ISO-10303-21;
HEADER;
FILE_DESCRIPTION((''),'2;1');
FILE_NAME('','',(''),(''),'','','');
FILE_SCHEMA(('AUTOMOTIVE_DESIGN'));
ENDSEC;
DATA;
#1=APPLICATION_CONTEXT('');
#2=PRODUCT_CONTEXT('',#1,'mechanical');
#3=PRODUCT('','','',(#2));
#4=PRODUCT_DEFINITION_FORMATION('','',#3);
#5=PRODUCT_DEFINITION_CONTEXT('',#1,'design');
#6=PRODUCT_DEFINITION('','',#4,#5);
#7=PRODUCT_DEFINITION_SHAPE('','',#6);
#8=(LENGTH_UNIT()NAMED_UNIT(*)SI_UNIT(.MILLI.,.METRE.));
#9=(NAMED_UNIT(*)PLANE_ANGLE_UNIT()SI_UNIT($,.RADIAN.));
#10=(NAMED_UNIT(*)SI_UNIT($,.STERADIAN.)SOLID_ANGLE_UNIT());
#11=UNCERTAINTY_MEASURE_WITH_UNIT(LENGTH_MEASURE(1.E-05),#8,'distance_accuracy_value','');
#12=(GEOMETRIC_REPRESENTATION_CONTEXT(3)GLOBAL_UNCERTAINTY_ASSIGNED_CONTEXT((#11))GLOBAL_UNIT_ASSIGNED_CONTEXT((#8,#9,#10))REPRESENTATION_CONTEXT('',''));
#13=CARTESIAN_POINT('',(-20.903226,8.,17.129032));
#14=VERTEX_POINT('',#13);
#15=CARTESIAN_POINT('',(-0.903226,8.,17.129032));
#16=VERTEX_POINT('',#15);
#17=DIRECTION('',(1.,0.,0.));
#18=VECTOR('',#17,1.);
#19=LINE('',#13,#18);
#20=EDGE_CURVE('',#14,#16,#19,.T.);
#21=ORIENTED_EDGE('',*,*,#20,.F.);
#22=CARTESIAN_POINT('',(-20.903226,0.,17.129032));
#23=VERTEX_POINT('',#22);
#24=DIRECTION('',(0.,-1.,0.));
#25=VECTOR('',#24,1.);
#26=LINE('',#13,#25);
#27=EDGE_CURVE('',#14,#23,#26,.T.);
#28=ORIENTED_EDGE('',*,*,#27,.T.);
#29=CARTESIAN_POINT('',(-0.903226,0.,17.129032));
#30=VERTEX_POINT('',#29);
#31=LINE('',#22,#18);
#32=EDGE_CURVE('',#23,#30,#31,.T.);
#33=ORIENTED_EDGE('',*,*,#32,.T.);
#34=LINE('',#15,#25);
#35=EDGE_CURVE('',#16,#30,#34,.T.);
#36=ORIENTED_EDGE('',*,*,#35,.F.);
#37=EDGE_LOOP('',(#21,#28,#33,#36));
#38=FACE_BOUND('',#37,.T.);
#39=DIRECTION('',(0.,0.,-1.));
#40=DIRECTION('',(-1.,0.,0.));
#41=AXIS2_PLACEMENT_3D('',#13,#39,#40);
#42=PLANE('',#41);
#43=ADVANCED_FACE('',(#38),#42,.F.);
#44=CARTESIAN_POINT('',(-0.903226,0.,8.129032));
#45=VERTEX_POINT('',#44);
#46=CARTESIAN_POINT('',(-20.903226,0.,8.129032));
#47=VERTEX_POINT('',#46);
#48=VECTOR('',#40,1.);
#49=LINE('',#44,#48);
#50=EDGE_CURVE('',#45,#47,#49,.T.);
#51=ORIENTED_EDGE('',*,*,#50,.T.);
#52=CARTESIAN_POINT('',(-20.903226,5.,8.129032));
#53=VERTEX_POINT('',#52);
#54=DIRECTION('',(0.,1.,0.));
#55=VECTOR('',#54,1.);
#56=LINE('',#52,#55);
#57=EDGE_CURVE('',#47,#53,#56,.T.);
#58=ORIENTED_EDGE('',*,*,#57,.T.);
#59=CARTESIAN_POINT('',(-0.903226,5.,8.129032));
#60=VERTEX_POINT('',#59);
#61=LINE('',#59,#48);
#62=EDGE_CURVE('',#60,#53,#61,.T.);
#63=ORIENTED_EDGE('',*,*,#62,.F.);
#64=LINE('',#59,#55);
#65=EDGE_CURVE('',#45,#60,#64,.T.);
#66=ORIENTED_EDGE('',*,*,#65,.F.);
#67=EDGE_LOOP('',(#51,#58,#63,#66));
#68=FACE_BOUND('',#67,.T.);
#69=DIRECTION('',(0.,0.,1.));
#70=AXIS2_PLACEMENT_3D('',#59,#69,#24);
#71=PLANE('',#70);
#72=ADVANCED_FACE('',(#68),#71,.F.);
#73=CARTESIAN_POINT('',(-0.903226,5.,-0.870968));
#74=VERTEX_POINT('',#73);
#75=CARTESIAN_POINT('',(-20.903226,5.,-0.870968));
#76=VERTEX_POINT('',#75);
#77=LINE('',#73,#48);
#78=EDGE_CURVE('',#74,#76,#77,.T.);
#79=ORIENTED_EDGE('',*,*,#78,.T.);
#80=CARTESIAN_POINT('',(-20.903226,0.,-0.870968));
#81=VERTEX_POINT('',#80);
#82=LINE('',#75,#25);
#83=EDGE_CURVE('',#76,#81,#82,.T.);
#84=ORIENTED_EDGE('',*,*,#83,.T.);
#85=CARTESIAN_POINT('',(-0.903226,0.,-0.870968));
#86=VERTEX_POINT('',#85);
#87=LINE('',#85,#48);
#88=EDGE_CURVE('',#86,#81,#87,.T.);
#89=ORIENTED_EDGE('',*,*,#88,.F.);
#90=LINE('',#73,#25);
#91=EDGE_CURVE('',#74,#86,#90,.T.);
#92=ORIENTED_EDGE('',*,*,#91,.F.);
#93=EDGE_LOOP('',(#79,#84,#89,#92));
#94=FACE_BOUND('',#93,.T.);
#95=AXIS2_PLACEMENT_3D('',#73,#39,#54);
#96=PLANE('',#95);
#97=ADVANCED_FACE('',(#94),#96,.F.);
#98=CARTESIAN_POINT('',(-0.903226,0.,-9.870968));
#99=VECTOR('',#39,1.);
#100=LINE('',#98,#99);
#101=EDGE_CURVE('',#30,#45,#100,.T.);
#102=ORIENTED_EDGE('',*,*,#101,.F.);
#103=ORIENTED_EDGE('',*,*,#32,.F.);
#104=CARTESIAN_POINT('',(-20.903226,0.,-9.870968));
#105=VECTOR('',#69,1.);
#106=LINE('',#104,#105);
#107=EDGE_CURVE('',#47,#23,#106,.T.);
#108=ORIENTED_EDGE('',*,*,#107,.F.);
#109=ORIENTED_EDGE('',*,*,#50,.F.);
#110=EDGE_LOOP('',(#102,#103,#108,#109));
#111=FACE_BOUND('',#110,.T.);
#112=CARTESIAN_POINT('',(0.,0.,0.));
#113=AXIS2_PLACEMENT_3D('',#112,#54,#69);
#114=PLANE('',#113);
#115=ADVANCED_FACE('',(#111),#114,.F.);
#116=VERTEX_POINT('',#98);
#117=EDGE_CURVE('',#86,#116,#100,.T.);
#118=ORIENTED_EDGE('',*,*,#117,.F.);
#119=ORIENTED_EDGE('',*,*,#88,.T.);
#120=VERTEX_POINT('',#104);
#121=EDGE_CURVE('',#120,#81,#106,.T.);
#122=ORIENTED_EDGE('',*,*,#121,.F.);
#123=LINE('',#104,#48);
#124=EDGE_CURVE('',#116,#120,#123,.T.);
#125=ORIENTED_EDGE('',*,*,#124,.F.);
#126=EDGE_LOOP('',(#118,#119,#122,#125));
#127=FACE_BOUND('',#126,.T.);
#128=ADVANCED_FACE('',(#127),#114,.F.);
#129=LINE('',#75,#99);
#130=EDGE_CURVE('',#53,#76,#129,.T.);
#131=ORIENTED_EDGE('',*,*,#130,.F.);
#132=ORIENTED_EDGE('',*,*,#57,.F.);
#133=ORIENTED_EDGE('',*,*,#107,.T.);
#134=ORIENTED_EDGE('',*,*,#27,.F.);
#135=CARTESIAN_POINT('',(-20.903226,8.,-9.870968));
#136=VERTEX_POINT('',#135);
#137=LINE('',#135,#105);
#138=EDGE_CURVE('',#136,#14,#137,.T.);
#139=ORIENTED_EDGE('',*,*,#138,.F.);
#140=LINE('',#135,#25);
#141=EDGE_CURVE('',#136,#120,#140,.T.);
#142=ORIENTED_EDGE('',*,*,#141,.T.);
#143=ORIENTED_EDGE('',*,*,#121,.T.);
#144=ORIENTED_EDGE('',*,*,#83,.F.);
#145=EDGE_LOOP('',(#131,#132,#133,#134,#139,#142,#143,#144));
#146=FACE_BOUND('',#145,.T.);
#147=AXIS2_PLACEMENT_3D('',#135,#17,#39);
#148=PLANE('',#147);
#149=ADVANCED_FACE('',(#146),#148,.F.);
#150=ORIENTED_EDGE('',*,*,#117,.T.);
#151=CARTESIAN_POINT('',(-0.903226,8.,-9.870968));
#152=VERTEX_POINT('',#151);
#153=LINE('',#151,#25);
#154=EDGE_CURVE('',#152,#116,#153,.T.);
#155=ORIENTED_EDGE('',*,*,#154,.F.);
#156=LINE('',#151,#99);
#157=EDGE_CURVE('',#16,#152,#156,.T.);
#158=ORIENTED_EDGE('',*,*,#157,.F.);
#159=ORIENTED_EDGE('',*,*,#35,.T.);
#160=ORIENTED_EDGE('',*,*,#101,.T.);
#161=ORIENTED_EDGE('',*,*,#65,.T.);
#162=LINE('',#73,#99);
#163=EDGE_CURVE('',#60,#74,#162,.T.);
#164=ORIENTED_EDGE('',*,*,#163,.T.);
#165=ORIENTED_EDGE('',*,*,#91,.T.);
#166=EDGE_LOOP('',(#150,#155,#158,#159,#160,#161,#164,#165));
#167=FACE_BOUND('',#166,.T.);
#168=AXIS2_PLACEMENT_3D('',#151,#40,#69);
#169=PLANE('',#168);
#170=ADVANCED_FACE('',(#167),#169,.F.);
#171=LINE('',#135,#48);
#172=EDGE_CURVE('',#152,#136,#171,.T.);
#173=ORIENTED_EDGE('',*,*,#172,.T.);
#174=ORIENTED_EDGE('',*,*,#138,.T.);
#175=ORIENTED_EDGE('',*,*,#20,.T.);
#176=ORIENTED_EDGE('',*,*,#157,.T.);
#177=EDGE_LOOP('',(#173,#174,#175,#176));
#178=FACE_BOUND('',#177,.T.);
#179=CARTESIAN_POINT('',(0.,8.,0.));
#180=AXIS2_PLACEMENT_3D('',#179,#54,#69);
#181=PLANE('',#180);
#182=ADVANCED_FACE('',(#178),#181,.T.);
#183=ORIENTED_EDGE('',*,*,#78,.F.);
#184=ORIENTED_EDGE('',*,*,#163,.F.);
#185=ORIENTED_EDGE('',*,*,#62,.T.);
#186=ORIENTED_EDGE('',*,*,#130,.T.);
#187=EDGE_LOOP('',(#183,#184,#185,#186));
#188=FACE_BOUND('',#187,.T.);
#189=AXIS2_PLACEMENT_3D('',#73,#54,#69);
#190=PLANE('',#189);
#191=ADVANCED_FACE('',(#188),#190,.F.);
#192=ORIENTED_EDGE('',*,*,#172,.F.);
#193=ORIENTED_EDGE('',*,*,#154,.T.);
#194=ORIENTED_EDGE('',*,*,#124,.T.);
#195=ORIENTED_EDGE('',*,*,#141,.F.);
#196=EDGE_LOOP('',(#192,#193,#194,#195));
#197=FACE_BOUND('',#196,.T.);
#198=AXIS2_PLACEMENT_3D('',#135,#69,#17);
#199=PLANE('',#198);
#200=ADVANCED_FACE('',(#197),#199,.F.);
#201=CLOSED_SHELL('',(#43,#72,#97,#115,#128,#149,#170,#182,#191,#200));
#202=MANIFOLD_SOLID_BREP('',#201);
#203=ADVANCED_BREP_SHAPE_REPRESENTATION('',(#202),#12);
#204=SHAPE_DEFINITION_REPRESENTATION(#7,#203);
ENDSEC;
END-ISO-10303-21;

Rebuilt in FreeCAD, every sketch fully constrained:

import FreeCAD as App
import Part
import Sketcher


def add_polygon(sketch, points):
    """Adds a closed chain of lines whose ends are joined by coincident constraints."""
    first, n = sketch.GeometryCount, len(points)
    for a, b in zip(points, points[1:] + points[:1]):
        sketch.addGeometry(Part.LineSegment(App.Vector(*a, 0), App.Vector(*b, 0)), False)
    for i in range(n):
        sketch.addConstraint(Sketcher.Constraint("Coincident", first + i, 2, first + (i + 1) % n, 1))

doc = App.newDocument("Part")
body = doc.addObject("PartDesign::Body", "Body")

sketch1 = body.newObject("Sketcher::SketchObject", "Sketch")
sketch1.AttachmentSupport = (doc.getObject("XZ_Plane"), [""])
sketch1.MapMode = "FlatFace"
add_polygon(sketch1, [(-20.903226, -9.870968), (-20.903226, 17.129032), (-0.903226, 17.129032), (-0.903226, -9.870968)])
sketch1.addConstraint(Sketcher.Constraint("Vertical", 0))
sketch1.addConstraint(Sketcher.Constraint("Horizontal", 1))
sketch1.addConstraint(Sketcher.Constraint("Vertical", 2))
sketch1.addConstraint(Sketcher.Constraint("Horizontal", 3))
sketch1.addConstraint(Sketcher.Constraint("DistanceX", 1, 1, 1, 2, 20.0))
sketch1.addConstraint(Sketcher.Constraint("DistanceY", 0, 1, 0, 2, 27.0))
sketch1.addConstraint(Sketcher.Constraint("DistanceX", 0, 2, -1, 1, 20.903226))
sketch1.addConstraint(Sketcher.Constraint("DistanceY", -1, 1, 0, 2, 17.129032))
pad1 = body.newObject("PartDesign::Pad", "Pad")
pad1.Profile = sketch1
pad1.Length = 8
pad1.Reversed = True

sketch2 = body.newObject("Sketcher::SketchObject", "Sketch001")
sketch2.AttachmentSupport = (doc.getObject("YZ_Plane"), [""])
sketch2.MapMode = "FlatFace"
sketch2.AttachmentOffset = App.Placement(App.Vector(0, 0, -20.903226), App.Rotation())
add_polygon(sketch2, [(5, -0.870968), (0, -0.870968), (0, 8.129032), (5, 8.129032)])
sketch2.addConstraint(Sketcher.Constraint("Horizontal", 0))
sketch2.addConstraint(Sketcher.Constraint("Vertical", 1))
sketch2.addConstraint(Sketcher.Constraint("Horizontal", 2))
sketch2.addConstraint(Sketcher.Constraint("Vertical", 3))
sketch2.addConstraint(Sketcher.Constraint("PointOnObject", 0, 2, -2))
sketch2.addConstraint(Sketcher.Constraint("DistanceX", 0, 2, 0, 1, 5.0))
sketch2.addConstraint(Sketcher.Constraint("DistanceY", 1, 1, 1, 2, 9.0))
sketch2.addConstraint(Sketcher.Constraint("DistanceY", 0, 2, -1, 1, 0.870968))
pocket1 = body.newObject("PartDesign::Pocket", "Pocket")
pocket1.Profile = sketch2
pocket1.Length = 20
pocket1.Reversed = True

doc.recompute()
